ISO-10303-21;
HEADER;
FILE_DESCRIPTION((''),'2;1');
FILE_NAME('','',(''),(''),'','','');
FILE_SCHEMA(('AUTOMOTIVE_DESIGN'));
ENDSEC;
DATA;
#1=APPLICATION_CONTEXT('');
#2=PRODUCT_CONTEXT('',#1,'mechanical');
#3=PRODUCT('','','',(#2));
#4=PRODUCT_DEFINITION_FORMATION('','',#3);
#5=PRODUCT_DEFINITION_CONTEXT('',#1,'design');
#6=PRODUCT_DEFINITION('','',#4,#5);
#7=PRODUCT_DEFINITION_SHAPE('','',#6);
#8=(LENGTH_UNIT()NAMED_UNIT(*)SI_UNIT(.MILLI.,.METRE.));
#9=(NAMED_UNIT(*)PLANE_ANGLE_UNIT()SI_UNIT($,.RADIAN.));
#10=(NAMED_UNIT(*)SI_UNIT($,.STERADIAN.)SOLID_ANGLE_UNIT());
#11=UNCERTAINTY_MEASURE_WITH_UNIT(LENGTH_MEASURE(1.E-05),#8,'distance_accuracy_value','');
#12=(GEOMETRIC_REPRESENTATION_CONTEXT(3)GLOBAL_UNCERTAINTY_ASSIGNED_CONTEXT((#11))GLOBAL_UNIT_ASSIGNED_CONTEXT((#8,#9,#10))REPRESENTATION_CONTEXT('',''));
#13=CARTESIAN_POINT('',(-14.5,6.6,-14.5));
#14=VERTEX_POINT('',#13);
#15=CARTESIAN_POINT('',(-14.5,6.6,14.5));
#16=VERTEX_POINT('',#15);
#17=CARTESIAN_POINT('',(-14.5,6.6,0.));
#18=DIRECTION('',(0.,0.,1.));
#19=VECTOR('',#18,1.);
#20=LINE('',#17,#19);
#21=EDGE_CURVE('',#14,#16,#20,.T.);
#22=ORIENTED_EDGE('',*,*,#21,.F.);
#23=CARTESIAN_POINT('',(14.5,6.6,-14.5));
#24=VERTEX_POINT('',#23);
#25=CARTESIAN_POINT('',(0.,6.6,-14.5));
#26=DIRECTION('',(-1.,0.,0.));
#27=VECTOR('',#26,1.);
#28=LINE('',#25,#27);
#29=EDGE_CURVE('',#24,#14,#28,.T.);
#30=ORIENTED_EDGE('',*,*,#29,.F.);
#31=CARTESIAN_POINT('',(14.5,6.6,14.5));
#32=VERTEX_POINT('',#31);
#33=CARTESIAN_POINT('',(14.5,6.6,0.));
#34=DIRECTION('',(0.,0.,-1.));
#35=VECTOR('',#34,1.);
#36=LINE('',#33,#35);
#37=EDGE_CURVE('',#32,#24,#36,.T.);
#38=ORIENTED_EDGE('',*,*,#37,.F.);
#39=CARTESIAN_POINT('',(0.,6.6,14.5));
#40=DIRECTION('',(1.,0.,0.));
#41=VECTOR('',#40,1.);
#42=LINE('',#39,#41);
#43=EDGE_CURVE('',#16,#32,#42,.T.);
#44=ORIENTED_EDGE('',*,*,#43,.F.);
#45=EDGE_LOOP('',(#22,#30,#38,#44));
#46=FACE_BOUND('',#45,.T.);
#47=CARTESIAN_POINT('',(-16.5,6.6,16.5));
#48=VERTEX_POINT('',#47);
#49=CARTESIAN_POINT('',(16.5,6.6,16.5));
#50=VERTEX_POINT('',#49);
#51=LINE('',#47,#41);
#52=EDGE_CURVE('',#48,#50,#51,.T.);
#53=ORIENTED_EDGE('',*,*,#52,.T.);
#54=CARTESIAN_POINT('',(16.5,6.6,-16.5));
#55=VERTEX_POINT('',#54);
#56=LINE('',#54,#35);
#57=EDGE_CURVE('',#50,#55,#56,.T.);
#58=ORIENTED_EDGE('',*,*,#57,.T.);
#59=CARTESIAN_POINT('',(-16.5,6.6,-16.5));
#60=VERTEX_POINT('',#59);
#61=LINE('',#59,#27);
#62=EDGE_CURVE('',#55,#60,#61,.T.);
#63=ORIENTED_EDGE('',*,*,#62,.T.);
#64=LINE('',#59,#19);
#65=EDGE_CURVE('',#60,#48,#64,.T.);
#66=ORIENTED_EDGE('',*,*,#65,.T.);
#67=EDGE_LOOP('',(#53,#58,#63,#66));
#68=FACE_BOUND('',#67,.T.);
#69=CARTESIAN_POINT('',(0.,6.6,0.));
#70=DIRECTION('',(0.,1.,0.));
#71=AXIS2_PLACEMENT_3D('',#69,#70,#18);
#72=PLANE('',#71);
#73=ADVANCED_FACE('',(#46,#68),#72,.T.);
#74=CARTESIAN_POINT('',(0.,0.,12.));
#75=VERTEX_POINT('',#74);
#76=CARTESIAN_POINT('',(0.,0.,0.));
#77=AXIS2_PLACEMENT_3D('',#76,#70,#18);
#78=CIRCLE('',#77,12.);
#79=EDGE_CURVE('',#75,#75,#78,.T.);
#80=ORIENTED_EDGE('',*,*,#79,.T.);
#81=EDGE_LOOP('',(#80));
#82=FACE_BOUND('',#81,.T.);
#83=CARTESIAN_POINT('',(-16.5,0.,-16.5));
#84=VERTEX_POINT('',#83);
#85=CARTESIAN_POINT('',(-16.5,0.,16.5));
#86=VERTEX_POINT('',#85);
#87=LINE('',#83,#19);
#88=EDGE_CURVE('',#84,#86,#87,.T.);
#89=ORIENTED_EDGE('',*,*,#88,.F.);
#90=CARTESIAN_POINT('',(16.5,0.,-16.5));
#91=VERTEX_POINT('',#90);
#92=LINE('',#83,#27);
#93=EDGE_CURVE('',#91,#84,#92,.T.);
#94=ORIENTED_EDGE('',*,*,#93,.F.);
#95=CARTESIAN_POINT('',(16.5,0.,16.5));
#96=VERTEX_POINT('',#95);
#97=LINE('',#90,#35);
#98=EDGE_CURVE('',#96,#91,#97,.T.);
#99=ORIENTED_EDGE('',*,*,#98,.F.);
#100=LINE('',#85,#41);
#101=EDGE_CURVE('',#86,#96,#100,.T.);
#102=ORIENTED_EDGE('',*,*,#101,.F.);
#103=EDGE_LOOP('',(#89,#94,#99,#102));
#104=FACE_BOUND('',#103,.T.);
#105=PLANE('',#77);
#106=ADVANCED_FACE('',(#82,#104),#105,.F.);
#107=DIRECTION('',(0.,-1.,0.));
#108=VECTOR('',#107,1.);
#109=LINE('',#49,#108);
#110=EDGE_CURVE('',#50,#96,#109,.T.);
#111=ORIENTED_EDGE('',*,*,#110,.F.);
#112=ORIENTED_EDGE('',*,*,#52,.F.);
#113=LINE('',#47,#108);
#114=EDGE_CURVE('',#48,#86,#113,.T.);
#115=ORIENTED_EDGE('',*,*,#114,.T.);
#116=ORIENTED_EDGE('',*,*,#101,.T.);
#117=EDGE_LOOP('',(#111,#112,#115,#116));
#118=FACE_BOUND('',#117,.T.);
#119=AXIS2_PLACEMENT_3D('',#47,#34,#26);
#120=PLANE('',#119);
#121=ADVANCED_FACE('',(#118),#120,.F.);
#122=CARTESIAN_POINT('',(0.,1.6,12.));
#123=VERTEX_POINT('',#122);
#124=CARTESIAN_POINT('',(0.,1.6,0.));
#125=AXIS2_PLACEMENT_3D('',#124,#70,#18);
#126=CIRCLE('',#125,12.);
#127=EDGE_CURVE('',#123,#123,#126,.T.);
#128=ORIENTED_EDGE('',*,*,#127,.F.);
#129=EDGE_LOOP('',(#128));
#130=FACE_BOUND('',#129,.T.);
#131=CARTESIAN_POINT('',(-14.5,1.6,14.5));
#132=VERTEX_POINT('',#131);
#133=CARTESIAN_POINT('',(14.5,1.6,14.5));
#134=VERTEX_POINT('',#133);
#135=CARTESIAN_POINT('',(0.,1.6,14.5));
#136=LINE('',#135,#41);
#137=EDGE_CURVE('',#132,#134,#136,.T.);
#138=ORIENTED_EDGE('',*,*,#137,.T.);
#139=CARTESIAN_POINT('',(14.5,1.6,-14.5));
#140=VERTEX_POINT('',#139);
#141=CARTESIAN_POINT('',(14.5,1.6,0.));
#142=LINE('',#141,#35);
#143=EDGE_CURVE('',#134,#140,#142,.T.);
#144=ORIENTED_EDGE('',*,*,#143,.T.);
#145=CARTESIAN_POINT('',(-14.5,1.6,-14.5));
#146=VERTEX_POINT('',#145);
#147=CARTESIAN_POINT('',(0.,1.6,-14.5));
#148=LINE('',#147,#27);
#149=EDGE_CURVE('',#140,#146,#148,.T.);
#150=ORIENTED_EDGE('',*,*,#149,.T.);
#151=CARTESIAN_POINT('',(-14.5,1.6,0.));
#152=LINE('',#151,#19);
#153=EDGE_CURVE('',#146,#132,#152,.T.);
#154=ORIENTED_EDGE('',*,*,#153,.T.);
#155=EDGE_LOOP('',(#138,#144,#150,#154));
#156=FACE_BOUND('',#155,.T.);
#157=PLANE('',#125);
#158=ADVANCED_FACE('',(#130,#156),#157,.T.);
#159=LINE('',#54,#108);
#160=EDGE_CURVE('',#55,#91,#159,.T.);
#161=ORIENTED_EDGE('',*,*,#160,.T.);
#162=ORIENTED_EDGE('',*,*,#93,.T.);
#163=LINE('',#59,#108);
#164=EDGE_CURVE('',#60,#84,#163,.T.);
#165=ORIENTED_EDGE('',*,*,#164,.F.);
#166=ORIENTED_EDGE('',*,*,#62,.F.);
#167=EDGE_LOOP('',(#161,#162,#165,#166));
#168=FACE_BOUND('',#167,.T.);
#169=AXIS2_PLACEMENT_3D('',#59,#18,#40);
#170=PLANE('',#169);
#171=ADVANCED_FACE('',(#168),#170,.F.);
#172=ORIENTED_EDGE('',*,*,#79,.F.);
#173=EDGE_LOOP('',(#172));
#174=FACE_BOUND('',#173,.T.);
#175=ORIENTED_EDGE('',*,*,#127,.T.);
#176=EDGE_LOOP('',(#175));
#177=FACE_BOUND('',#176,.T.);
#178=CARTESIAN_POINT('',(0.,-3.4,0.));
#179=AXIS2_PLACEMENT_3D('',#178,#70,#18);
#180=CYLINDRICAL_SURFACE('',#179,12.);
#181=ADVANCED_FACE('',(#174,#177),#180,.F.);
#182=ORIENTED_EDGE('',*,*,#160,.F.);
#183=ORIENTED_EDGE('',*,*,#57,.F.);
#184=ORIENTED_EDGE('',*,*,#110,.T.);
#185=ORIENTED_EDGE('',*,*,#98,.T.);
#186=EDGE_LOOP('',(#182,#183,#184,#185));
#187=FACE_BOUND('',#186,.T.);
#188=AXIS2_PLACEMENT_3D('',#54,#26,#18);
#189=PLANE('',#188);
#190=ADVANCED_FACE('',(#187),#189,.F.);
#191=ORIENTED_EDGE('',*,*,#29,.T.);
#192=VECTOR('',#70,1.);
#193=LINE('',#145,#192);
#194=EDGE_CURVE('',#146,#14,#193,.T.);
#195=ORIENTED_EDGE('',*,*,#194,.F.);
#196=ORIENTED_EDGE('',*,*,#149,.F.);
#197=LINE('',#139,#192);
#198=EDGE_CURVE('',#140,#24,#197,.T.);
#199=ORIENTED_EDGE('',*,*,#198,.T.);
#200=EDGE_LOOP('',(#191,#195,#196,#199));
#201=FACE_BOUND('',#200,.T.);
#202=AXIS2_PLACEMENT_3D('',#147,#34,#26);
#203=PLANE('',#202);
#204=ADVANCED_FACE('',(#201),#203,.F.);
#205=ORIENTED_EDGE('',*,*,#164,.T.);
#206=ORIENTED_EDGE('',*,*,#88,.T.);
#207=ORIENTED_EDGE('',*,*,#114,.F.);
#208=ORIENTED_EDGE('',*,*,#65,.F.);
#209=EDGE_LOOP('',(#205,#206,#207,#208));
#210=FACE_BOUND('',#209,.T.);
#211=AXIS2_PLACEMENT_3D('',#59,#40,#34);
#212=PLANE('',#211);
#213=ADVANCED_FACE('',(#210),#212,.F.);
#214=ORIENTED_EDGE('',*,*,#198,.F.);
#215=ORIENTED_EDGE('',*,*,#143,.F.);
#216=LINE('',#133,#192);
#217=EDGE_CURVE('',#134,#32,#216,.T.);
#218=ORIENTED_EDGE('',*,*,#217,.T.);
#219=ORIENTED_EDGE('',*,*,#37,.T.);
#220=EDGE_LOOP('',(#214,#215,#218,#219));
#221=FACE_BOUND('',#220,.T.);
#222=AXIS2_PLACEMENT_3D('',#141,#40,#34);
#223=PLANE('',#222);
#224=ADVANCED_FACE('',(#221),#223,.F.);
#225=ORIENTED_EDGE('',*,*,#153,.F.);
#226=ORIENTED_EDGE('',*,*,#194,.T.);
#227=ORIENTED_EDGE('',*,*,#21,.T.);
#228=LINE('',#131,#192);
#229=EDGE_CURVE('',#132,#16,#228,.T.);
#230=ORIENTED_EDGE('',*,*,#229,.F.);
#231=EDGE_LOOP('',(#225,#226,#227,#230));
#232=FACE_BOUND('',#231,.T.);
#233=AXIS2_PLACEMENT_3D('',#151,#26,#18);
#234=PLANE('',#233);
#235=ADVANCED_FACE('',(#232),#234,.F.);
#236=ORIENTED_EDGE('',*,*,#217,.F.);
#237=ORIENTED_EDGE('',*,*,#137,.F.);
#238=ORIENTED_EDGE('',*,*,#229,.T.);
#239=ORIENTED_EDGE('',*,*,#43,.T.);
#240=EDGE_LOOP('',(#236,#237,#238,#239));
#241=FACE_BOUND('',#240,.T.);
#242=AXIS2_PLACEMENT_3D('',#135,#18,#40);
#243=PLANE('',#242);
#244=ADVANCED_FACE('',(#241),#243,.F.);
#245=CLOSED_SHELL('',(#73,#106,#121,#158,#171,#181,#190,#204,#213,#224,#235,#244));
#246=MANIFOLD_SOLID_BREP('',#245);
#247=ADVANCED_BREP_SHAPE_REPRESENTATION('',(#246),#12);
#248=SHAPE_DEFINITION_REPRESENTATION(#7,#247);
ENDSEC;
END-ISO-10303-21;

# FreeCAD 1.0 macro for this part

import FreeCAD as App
import Part
import Sketcher

V = App.Vector

doc = App.newDocument("Part")
params = doc.addObject("Spreadsheet::Sheet", "Params")
for row, (alias, value) in enumerate([
    ("sketch1_width", "33 mm"),
    ("pad1_length", "6.6 mm"),
    ("sketch2_width", "29 mm"),
    ("pocket1_length", "5 mm"),
    ("sketch3_diameter", "24 mm"),
    ("pocket2_length", "5 mm"),
], start=1):
    params.set(f"A{row}", alias)
    params.set(f"B{row}", "=" + value)
    params.setAlias(f"B{row}", alias)

body = doc.addObject("PartDesign::Body", "Body")

# Sketch on XZ plane
sketch1 = body.newObject("Sketcher::SketchObject", "Sketch")
sketch1.AttachmentSupport = (doc.getObject("XZ_Plane"), [""])
sketch1.MapMode = "FlatFace"
sketch1.addGeometry(Part.LineSegment(V(-16, -16, 0), V(-16, 16, 0)), False)
sketch1.addGeometry(Part.LineSegment(V(-16, 16, 0), V(16, 16, 0)), False)
sketch1.addGeometry(Part.LineSegment(V(16, 16, 0), V(16, -16, 0)), False)
sketch1.addGeometry(Part.LineSegment(V(16, -16, 0), V(-16, -16, 0)), False)
sketch1.addConstraint(Sketcher.Constraint("Coincident", 0, 2, 1, 1))
sketch1.addConstraint(Sketcher.Constraint("Coincident", 1, 2, 2, 1))
sketch1.addConstraint(Sketcher.Constraint("Coincident", 2, 2, 3, 1))
sketch1.addConstraint(Sketcher.Constraint("Coincident", 3, 2, 0, 1))
sketch1.addConstraint(Sketcher.Constraint("Vertical", 0))
sketch1.addConstraint(Sketcher.Constraint("Horizontal", 1))
sketch1.addConstraint(Sketcher.Constraint("Vertical", 2))
sketch1.addConstraint(Sketcher.Constraint("Horizontal", 3))
sketch1.addConstraint(Sketcher.Constraint("Symmetric", 0, 2, 2, 2, -1, 1))
sketch1.addConstraint(Sketcher.Constraint("Equal", 3, 0))
sketch1.addConstraint(Sketcher.Constraint("DistanceX", 1, 1, 1, 2, 33.0))
sketch1.setExpression("Constraints[10]", "Params.sketch1_width")
pad1 = body.newObject("PartDesign::Pad", "Pad")
pad1.Profile = sketch1
pad1.setExpression("Length", "Params.pad1_length")
pad1.Reversed = True

# Sketch on XZ plane
sketch2 = body.newObject("Sketcher::SketchObject", "Sketch001")
sketch2.AttachmentSupport = (doc.getObject("XZ_Plane"), [""])
sketch2.MapMode = "FlatFace"
sketch2.AttachmentOffset = App.Placement(V(0, 0, -6.6), App.Rotation())
sketch2.addGeometry(Part.LineSegment(V(-14, -14, 0), V(-14, 14, 0)), False)
sketch2.addGeometry(Part.LineSegment(V(-14, 14, 0), V(14, 14, 0)), False)
sketch2.addGeometry(Part.LineSegment(V(14, 14, 0), V(14, -14, 0)), False)
sketch2.addGeometry(Part.LineSegment(V(14, -14, 0), V(-14, -14, 0)), False)
sketch2.addConstraint(Sketcher.Constraint("Coincident", 0, 2, 1, 1))
sketch2.addConstraint(Sketcher.Constraint("Coincident", 1, 2, 2, 1))
sketch2.addConstraint(Sketcher.Constraint("Coincident", 2, 2, 3, 1))
sketch2.addConstraint(Sketcher.Constraint("Coincident", 3, 2, 0, 1))
sketch2.addConstraint(Sketcher.Constraint("Vertical", 0))
sketch2.addConstraint(Sketcher.Constraint("Horizontal", 1))
sketch2.addConstraint(Sketcher.Constraint("Vertical", 2))
sketch2.addConstraint(Sketcher.Constraint("Horizontal", 3))
sketch2.addConstraint(Sketcher.Constraint("Symmetric", 0, 2, 2, 2, -1, 1))
sketch2.addConstraint(Sketcher.Constraint("Equal", 3, 0))
sketch2.addConstraint(Sketcher.Constraint("DistanceX", 1, 1, 1, 2, 29.0))
sketch2.setExpression("Constraints[10]", "Params.sketch2_width")
pocket1 = body.newObject("PartDesign::Pocket", "Pocket")
pocket1.Profile = sketch2
pocket1.setExpression("Length", "Params.pocket1_length")
pocket1.Reversed = True

# Sketch on XZ plane
sketch3 = body.newObject("Sketcher::SketchObject", "Sketch002")
sketch3.AttachmentSupport = (doc.getObject("XZ_Plane"), [""])
sketch3.MapMode = "FlatFace"
sketch3.AttachmentOffset = App.Placement(V(0, 0, -1.6), App.Rotation())
sketch3.addGeometry(Part.Circle(V(0, 0, 0), V(0, 0, 1), 12), False)
sketch3.addConstraint(Sketcher.Constraint("Coincident", 0, 3, -1, 1))
sketch3.addConstraint(Sketcher.Constraint("Diameter", 0, 24.0))
sketch3.setExpression("Constraints[1]", "Params.sketch3_diameter")
pocket2 = body.newObject("PartDesign::Pocket", "Pocket001")
pocket2.Profile = sketch3
pocket2.setExpression("Length", "Params.pocket2_length")
pocket2.Reversed = True

doc.recompute()
